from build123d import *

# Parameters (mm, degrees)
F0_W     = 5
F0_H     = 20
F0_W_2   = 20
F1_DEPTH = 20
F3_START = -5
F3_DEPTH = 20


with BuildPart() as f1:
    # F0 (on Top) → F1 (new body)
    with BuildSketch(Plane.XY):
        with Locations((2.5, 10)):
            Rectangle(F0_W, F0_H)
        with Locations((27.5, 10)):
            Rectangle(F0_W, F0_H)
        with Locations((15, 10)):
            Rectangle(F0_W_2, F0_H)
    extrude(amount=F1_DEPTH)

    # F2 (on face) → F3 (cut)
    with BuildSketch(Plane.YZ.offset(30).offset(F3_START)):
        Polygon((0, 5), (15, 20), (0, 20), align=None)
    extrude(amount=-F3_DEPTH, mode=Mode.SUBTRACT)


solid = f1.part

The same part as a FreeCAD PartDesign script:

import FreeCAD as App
import Part
import Sketcher
from FreeCAD import Vector


def add_polygon(sketch, points):
    """Adds a closed chain of lines whose ends are joined by coincident constraints."""
    first, n = sketch.GeometryCount, len(points)
    for a, b in zip(points, points[1:] + points[:1]):
        sketch.addGeometry(Part.LineSegment(App.Vector(*a, 0), App.Vector(*b, 0)), False)
    for i in range(n):
        sketch.addConstraint(Sketcher.Constraint("Coincident", first + i, 2, first + (i + 1) % n, 1))

doc = App.newDocument("Part")
body = doc.addObject("PartDesign::Body", "Body")

# Sketch on XY plane
sketch1 = body.newObject("Sketcher::SketchObject", "Sketch")
sketch1.AttachmentSupport = (doc.getObject("XY_Plane"), [""])
sketch1.MapMode = "FlatFace"
add_polygon(sketch1, [(0, 20), (0, 0), (30, 0), (30, 20)])  # lines 0-3
sketch1.addConstraint([
    Sketcher.Constraint("Vertical", 0),
    Sketcher.Constraint("Horizontal", 1),
    Sketcher.Constraint("Vertical", 2),
    Sketcher.Constraint("Horizontal", 3),
    Sketcher.Constraint("Coincident", 0, 2, -1, 1),
    Sketcher.Constraint("DistanceX", 1, 1, 1, 2, 30.0),
    Sketcher.Constraint("DistanceY", 0, 2, 0, 1, 20.0),
])
pad1 = body.newObject("PartDesign::Pad", "Pad")
pad1.Profile = sketch1
pad1.Length = 20

# Sketch on YZ plane
sketch2 = body.newObject("Sketcher::SketchObject", "Sketch001")
sketch2.AttachmentSupport = (doc.getObject("YZ_Plane"), [""])
sketch2.MapMode = "FlatFace"
sketch2.AttachmentOffset = App.Placement(Vector(0, 0, 25), App.Rotation())
add_polygon(sketch2, [(0, 5), (15, 20), (0, 20)])  # lines 0-2
sketch2.addConstraint([
    Sketcher.Constraint("Horizontal", 1),
    Sketcher.Constraint("Vertical", 2),
    Sketcher.Constraint("PointOnObject", 1, 2, -2),
    Sketcher.Constraint("Equal", 1, 2),
    Sketcher.Constraint("DistanceX", 1, 2, 1, 1, 15.0),
    Sketcher.Constraint("DistanceY", -1, 1, 0, 2, 20.0),
])
pocket1 = body.newObject("PartDesign::Pocket", "Pocket")
pocket1.Profile = sketch2
pocket1.Length = 20

doc.recompute()
